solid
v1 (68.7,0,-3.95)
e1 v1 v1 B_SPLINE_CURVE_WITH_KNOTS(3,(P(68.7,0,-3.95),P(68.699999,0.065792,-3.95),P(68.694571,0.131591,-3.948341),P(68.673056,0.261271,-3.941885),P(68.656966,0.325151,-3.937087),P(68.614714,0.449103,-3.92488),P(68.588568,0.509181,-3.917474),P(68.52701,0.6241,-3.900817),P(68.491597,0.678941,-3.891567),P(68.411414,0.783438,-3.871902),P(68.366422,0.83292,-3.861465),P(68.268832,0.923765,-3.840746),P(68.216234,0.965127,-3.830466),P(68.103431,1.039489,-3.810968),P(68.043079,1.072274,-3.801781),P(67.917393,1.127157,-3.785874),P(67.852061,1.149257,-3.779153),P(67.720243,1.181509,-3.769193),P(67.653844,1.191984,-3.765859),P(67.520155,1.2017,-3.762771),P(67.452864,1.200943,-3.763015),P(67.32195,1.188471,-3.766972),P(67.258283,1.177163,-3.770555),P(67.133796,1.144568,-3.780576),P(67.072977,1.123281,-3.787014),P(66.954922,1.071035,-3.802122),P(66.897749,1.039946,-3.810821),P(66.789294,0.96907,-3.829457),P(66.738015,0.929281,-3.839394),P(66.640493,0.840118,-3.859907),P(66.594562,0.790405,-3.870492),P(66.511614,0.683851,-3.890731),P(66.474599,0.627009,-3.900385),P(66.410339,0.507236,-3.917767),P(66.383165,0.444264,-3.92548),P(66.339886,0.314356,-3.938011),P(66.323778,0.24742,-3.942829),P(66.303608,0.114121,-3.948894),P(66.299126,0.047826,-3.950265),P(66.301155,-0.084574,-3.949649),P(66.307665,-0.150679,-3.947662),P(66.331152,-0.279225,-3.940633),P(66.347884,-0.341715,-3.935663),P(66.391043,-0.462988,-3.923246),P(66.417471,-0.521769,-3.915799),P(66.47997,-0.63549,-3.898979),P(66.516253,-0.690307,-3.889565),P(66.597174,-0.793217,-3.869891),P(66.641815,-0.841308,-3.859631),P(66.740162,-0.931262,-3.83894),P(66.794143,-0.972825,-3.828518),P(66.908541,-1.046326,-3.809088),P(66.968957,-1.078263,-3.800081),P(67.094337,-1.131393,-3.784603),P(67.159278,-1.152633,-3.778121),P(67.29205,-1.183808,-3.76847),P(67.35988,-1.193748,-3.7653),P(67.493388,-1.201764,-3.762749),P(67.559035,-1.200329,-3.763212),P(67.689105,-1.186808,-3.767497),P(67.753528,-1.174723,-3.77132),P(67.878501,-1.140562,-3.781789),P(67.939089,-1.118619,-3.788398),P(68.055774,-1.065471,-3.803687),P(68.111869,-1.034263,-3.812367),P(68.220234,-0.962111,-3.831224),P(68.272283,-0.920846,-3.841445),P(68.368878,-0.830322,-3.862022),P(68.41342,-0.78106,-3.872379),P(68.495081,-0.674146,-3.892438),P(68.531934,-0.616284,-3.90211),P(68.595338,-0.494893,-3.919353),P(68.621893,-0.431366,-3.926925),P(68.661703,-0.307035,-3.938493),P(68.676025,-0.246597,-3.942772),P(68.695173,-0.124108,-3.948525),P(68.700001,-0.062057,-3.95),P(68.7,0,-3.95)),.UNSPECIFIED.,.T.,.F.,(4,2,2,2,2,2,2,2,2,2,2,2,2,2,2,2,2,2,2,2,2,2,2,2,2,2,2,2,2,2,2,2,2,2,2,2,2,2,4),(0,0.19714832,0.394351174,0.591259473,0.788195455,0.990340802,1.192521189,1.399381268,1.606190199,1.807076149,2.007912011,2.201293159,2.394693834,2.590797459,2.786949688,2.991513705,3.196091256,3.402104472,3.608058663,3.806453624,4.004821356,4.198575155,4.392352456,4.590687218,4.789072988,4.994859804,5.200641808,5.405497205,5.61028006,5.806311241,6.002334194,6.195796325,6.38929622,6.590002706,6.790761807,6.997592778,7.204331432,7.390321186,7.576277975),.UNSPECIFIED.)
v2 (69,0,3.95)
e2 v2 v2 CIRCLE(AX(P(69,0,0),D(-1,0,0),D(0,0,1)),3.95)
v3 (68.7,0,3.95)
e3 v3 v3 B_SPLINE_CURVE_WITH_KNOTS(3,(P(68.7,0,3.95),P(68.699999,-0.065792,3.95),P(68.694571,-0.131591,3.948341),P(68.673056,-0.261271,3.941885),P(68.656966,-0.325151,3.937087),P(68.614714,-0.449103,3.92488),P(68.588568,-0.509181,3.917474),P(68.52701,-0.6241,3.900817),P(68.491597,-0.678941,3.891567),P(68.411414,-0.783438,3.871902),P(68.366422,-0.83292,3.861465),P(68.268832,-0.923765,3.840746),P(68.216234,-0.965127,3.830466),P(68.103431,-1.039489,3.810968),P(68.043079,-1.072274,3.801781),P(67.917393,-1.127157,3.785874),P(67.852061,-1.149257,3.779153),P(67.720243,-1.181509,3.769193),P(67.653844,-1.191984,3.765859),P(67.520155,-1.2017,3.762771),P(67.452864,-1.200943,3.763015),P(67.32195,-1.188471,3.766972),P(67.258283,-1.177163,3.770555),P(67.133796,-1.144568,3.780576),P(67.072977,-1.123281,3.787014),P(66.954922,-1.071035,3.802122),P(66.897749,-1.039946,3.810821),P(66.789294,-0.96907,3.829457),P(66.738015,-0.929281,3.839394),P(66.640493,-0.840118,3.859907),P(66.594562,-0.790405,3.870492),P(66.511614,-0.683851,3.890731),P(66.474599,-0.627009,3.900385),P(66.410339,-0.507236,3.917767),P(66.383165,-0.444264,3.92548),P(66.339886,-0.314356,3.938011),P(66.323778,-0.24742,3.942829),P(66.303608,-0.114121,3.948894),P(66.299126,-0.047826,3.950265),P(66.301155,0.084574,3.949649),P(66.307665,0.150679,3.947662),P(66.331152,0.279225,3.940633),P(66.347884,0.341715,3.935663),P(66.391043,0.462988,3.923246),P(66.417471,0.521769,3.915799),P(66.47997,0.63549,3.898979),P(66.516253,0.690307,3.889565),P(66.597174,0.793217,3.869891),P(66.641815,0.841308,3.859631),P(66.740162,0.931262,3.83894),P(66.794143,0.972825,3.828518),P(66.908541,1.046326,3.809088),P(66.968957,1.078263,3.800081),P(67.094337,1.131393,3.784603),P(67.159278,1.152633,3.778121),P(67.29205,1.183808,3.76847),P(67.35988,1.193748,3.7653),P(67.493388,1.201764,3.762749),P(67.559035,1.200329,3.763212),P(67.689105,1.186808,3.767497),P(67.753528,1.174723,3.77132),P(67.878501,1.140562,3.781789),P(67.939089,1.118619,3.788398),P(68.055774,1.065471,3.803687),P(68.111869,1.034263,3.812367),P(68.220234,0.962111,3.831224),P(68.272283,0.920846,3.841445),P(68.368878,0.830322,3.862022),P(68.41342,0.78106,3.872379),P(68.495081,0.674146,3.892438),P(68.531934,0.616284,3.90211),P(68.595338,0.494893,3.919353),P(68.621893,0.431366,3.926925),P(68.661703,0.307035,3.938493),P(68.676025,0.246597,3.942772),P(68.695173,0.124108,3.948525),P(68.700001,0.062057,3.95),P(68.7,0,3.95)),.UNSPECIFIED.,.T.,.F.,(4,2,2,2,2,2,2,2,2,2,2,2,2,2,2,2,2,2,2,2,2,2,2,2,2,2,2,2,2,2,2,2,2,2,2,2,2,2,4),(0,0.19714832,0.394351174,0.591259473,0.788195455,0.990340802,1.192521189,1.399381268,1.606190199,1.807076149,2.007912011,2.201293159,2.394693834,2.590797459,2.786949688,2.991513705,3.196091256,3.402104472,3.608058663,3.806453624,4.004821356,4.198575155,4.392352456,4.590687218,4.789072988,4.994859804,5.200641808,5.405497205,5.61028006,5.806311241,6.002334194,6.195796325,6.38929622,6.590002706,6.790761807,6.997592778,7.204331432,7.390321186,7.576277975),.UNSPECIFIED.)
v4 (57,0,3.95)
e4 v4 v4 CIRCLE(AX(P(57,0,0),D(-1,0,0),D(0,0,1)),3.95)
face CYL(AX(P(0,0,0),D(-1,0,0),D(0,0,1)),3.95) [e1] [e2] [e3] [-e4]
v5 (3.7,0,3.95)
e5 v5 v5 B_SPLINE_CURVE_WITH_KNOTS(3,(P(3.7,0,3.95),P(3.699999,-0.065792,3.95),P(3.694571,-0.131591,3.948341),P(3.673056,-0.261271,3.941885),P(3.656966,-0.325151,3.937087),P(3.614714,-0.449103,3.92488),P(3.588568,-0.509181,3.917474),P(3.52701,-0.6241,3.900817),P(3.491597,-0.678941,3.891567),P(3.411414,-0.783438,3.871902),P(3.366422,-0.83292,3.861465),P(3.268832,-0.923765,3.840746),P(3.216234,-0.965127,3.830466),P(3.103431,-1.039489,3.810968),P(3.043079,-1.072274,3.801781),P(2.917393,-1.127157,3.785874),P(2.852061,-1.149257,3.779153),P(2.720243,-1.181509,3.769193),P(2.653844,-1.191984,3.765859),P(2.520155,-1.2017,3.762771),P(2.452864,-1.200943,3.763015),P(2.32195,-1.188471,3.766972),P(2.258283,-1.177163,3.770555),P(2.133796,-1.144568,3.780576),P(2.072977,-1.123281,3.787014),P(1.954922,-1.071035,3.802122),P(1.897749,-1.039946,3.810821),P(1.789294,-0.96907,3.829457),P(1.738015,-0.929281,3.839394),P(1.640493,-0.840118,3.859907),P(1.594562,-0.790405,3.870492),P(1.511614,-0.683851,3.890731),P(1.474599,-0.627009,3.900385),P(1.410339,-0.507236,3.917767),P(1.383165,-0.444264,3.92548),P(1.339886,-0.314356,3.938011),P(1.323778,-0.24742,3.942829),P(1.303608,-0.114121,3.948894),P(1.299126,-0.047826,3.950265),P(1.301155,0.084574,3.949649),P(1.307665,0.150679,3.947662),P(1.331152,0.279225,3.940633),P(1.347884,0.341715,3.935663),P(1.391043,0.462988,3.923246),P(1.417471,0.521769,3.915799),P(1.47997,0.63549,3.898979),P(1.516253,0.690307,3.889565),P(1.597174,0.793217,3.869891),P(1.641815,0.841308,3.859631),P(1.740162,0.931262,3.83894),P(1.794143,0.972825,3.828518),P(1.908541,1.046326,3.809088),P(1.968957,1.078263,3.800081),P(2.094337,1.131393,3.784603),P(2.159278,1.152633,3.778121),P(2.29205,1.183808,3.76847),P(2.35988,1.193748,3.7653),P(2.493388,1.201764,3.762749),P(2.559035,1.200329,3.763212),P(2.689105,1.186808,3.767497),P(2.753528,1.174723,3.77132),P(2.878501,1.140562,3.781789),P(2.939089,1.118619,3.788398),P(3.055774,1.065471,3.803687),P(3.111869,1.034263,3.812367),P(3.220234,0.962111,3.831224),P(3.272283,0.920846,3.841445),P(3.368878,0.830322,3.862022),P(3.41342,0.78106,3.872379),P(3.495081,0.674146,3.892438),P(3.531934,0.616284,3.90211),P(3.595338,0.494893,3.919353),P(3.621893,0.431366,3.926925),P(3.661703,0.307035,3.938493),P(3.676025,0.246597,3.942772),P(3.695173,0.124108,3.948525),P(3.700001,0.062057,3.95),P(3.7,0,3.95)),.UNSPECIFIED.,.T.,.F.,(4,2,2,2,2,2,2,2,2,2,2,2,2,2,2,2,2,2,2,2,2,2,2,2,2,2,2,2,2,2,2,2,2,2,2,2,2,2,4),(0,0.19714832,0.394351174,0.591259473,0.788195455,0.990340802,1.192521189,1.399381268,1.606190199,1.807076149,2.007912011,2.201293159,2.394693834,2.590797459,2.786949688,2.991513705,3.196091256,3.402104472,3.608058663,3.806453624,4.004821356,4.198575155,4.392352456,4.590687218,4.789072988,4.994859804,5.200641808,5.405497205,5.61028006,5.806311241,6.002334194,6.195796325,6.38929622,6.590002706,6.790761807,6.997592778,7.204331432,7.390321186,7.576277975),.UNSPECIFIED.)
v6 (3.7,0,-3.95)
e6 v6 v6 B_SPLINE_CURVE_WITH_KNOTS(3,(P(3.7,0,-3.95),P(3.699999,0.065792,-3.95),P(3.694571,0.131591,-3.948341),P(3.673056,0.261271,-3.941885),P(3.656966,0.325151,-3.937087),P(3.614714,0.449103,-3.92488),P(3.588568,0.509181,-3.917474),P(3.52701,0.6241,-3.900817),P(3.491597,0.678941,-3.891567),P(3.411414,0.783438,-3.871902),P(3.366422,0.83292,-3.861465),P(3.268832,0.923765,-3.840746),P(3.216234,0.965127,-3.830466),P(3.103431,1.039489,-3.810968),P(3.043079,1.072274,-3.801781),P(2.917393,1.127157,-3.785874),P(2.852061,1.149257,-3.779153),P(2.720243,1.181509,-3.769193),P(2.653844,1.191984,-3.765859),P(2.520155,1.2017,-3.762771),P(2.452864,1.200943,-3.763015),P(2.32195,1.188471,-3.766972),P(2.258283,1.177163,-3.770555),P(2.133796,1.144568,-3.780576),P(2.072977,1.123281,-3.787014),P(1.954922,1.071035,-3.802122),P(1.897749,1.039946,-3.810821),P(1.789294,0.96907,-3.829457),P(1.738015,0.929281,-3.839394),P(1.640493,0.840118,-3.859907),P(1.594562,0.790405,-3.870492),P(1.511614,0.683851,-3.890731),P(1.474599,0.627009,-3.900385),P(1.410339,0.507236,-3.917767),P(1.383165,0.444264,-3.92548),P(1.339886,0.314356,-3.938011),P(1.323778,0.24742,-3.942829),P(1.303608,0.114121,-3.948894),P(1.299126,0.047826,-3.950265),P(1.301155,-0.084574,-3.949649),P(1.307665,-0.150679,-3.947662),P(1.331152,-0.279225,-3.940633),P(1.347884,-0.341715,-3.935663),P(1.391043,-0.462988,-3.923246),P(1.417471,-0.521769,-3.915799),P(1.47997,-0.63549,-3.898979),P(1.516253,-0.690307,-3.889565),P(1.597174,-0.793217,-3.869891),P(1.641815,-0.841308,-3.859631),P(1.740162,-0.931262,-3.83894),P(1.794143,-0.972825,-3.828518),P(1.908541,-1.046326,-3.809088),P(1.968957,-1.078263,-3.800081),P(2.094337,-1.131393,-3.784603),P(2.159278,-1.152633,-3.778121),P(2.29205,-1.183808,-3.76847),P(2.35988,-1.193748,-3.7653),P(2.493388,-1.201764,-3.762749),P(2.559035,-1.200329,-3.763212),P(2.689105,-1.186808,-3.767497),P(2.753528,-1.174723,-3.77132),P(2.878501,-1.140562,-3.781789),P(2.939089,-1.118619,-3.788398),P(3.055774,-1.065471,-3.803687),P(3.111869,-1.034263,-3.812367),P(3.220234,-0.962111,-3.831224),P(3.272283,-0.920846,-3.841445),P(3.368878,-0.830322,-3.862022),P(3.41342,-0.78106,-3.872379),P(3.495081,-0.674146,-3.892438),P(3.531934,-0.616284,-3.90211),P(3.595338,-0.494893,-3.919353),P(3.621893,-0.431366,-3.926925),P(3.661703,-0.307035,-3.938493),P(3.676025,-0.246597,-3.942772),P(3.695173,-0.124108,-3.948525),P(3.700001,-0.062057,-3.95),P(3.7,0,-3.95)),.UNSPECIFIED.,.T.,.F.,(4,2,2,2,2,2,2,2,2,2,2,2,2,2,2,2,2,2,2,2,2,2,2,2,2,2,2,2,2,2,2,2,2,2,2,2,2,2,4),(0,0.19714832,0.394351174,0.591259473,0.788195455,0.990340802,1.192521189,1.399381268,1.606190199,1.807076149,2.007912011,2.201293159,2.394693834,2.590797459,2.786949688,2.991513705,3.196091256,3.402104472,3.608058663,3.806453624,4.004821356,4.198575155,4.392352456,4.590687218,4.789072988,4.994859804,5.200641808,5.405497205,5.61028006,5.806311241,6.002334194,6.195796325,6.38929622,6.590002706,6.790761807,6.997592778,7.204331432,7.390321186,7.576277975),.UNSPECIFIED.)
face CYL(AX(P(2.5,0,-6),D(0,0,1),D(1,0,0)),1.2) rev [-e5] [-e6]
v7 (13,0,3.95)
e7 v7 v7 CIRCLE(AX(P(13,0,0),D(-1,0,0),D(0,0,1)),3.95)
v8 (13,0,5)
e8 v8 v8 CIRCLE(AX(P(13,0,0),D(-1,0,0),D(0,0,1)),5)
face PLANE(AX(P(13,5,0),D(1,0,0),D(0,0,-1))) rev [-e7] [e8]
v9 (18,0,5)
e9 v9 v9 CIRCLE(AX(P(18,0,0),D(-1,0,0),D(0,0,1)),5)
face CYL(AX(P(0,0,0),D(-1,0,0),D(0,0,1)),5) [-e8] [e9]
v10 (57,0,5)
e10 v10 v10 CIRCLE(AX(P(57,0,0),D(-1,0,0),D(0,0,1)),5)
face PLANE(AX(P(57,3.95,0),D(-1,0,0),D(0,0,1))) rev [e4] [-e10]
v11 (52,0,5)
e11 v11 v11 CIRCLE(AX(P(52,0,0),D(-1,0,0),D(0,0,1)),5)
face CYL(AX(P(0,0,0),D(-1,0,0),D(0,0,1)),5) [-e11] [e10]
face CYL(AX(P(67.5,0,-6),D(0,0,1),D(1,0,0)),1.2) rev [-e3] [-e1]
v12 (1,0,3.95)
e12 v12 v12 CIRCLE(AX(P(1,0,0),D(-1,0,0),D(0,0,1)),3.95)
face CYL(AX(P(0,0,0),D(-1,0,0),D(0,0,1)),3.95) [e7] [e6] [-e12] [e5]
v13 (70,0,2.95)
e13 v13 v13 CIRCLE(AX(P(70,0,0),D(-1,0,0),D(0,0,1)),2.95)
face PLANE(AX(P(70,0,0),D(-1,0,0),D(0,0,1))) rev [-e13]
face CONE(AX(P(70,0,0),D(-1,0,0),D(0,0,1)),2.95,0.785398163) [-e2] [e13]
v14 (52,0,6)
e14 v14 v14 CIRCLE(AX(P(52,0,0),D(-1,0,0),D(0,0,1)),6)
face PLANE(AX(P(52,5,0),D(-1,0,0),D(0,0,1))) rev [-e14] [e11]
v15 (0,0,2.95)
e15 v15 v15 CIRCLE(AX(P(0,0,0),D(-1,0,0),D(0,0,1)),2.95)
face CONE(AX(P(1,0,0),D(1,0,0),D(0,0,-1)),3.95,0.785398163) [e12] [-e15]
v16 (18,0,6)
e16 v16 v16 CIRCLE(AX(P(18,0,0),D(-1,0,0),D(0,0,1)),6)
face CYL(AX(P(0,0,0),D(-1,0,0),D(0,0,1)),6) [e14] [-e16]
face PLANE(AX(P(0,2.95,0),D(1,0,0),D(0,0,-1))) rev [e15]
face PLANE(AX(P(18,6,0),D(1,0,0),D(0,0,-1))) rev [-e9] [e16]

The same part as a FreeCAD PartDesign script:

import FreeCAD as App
import Part
import Sketcher
from FreeCAD import Vector
Q = App.Units.Quantity


def add_polygon(sketch, points):
    """Adds a closed chain of lines whose ends are joined by coincident constraints."""
    first, n = sketch.GeometryCount, len(points)
    for a, b in zip(points, points[1:] + points[:1]):
        sketch.addGeometry(Part.LineSegment(App.Vector(*a, 0), App.Vector(*b, 0)), False)
    for i in range(n):
        sketch.addConstraint(Sketcher.Constraint("Coincident", first + i, 2, first + (i + 1) % n, 1))

doc = App.newDocument("Part")
body = doc.addObject("PartDesign::Body", "Body")

sketch1 = body.newObject("Sketcher::SketchObject", "Sketch")
sketch1.AttachmentSupport = (doc.getObject("XY_Plane"), [""])
sketch1.MapMode = "FlatFace"
add_polygon(sketch1, [(0, 0), (70, 0), (70, 3), (69, 4), (57, 4), (57, 5), (52, 5), (52, 6), (18, 6), (18, 5), (13, 5), (13, 4), (1, 4), (0, 3)])
sketch1.addConstraint([
    Sketcher.Constraint("Horizontal", 0),
    Sketcher.Constraint("Vertical", 1),
    Sketcher.Constraint("Horizontal", 3),
    Sketcher.Constraint("Vertical", 4),
    Sketcher.Constraint("Horizontal", 5),
    Sketcher.Constraint("Vertical", 6),
    Sketcher.Constraint("Horizontal", 7),
    Sketcher.Constraint("Vertical", 8),
    Sketcher.Constraint("Horizontal", 9),
    Sketcher.Constraint("Vertical", 10),
    Sketcher.Constraint("Horizontal", 11),
    Sketcher.Constraint("Vertical", 13),
    Sketcher.Constraint("Coincident", 13, 2, -1, 1),
    Sketcher.Constraint("Perpendicular", 2, 12),
    Sketcher.Constraint("Horizontal", 5, 2, 8, 2),
    Sketcher.Constraint("Horizontal", 3, 2, 10, 2),
    Sketcher.Constraint("Horizontal", 1, 2, 12, 2),
    Sketcher.Constraint("Equal", 5, 9),
    Sketcher.Constraint("Equal", 3, 11),
    Sketcher.Constraint("Equal", 2, 12),
    Sketcher.Constraint("DistanceX", 0, 1, 0, 2, Q("70 mm")),
    Sketcher.Constraint("DistanceX", 3, 2, 3, 1, Q("12 mm")),
    Sketcher.Constraint("DistanceX", 5, 2, 5, 1, Q("5 mm")),
    Sketcher.Constraint("DistanceX", 7, 2, 7, 1, Q("34 mm")),
    Sketcher.Constraint("DistanceY", 6, 1, 6, 2, Q("1 mm")),
    Sketcher.Constraint("DistanceY", -1, 1, 4, 2, Q("5 mm")),
    Sketcher.Constraint("DistanceY", 1, 1, 1, 2, Q("2.95 mm")),
])
revolution = body.newObject("PartDesign::Revolution", "Revolution")
revolution.Profile = sketch1
revolution.ReferenceAxis = (sketch1, ["H_Axis"])
revolution.Angle = 360

sketch2 = body.newObject("Sketcher::SketchObject", "Sketch001")
sketch2.AttachmentSupport = (doc.getObject("XY_Plane"), [""])
sketch2.MapMode = "FlatFace"
sketch2.addGeometry([
    Part.Circle(Vector(67.5, 0, 0), Vector(0, 0, 1), 1.2),
    Part.Circle(Vector(2.5, 0, 0), Vector(0, 0, 1), 1.2),
], False)
sketch2.addConstraint([
    Sketcher.Constraint("Equal", 0, 1),
    Sketcher.Constraint("PointOnObject", 0, 3, -1),
    Sketcher.Constraint("PointOnObject", 1, 3, -1),
    Sketcher.Constraint("Diameter", 0, Q("2.4 mm")),
    Sketcher.Constraint("DistanceX", 1, 3, 0, 3, Q("65 mm")),
    Sketcher.Constraint("DistanceX", -1, 1, 0, 3, Q("67.5 mm")),
])
pocket1 = body.newObject("PartDesign::Pocket", "Pocket")
pocket1.Profile = sketch2
pocket1.Type = "ThroughAll"
pocket1.Midplane = True

doc.recompute()
